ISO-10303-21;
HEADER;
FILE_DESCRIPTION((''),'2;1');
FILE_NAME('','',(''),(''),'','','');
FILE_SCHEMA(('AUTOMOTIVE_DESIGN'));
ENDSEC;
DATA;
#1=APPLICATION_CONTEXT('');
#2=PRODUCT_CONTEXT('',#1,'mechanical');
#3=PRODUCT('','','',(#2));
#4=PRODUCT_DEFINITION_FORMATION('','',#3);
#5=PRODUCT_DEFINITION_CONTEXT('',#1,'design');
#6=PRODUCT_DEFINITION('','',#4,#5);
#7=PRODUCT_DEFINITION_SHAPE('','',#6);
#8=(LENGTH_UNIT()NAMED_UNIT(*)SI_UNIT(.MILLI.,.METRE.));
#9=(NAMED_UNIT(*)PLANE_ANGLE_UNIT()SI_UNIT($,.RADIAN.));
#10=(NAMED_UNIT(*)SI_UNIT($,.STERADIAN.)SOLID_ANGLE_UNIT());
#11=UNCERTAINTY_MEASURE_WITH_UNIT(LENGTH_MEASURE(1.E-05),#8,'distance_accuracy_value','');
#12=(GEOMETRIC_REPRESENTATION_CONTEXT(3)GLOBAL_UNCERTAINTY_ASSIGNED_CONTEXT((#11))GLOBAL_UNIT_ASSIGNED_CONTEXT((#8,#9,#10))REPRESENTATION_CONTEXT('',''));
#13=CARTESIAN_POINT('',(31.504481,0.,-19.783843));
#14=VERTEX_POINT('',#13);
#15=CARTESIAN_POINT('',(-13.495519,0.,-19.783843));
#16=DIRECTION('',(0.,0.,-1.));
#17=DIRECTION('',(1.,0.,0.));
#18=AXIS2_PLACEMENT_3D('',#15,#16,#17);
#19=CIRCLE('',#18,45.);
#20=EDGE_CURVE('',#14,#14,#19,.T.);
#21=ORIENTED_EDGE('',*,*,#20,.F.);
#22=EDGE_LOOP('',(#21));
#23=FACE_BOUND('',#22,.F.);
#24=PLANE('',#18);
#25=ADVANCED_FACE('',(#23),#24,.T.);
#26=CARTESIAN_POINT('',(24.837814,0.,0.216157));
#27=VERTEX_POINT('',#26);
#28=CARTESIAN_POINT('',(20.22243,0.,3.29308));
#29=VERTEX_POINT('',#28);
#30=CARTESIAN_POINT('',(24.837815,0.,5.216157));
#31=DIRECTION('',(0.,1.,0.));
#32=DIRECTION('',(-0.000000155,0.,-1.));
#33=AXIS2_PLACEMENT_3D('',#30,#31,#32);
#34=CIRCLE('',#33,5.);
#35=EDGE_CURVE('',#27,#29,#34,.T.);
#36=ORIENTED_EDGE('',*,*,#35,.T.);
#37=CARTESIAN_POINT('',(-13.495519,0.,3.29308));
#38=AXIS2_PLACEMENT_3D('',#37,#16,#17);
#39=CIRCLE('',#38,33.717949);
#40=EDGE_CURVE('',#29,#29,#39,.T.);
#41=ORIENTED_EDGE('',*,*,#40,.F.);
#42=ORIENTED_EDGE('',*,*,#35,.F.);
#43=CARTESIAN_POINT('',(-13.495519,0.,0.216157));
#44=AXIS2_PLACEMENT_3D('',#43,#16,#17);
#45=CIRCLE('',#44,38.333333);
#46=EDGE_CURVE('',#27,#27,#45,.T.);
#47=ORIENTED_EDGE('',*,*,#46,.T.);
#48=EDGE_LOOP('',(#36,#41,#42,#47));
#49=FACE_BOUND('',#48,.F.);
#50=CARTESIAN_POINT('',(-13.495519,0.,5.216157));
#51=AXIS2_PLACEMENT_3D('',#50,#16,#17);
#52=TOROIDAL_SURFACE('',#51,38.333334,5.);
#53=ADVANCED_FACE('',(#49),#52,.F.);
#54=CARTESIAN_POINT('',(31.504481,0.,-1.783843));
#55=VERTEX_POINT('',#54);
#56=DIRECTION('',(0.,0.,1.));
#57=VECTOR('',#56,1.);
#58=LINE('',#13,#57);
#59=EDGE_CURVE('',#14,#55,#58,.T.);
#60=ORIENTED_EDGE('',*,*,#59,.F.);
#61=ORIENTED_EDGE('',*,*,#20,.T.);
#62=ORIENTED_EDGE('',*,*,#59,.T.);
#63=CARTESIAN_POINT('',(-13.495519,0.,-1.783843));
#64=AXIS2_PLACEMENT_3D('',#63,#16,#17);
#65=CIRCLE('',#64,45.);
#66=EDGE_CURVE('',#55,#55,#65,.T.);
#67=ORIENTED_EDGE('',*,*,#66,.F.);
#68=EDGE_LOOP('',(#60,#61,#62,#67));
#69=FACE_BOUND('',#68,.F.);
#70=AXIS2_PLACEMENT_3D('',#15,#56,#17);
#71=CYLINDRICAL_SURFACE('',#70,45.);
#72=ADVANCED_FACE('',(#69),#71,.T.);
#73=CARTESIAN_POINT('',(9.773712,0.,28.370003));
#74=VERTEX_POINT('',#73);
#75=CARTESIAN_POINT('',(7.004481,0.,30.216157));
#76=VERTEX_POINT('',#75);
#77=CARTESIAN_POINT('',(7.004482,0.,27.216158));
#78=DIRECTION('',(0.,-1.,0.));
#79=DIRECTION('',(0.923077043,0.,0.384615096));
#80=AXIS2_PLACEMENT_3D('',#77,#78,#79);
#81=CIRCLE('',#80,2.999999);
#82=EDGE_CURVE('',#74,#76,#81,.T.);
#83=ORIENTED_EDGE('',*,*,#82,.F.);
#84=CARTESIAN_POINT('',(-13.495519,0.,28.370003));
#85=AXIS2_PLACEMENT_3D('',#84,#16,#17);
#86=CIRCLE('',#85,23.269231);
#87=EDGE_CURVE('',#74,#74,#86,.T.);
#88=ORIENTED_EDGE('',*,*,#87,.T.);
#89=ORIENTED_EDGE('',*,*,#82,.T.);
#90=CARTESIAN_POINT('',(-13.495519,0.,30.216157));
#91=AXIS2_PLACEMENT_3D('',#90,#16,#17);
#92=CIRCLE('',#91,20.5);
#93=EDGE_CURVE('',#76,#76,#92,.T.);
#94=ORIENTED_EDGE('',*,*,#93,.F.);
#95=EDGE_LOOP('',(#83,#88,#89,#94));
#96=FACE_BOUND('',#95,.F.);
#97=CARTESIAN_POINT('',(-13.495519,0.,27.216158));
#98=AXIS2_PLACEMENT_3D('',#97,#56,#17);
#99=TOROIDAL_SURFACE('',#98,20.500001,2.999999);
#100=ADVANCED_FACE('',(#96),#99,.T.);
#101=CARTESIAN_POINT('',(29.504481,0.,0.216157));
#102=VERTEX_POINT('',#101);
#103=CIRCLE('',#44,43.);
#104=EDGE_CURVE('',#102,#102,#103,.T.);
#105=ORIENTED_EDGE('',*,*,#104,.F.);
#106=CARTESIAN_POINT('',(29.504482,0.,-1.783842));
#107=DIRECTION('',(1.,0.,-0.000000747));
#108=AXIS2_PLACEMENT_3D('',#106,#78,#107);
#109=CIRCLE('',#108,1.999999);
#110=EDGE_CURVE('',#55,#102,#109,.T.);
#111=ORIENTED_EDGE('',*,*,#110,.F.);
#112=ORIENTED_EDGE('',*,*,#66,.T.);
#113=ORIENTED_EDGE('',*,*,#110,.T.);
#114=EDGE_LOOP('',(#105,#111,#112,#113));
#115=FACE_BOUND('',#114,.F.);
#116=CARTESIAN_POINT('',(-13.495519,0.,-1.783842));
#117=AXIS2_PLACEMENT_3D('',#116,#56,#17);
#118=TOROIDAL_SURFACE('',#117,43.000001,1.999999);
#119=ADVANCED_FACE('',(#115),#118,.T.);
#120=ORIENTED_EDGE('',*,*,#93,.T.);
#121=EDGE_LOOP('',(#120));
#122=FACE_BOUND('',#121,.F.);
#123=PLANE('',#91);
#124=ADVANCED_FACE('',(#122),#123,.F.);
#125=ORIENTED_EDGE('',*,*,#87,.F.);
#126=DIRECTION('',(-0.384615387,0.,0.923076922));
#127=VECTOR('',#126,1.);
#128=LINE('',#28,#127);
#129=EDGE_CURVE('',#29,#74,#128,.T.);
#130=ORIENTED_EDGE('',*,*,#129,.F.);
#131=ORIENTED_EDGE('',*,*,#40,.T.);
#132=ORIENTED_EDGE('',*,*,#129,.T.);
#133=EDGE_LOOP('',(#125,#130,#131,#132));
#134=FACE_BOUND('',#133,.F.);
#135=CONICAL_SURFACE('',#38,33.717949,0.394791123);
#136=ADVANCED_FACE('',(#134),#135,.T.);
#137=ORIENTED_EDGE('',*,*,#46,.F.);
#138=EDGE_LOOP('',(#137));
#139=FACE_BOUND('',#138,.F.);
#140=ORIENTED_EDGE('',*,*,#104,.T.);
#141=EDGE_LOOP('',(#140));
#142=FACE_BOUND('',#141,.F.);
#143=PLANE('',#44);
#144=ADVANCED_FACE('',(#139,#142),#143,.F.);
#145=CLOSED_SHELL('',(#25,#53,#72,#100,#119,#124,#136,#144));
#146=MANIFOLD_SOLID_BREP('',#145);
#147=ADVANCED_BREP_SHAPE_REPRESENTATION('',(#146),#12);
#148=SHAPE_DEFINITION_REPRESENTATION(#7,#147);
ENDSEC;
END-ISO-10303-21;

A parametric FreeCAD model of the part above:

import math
import FreeCAD as App
import Part
import Sketcher

doc = App.newDocument("Part")
body = doc.addObject("PartDesign::Body", "Body")

sketch1 = doc.addObject("Sketcher::SketchObject", "Sketch")
body.addObject(sketch1)
sketch1.AttachmentSupport = (doc.XZ_Plane, [""])
sketch1.MapMode = "FlatFace"
sketch1.addGeometry([
    Part.LineSegment(App.Vector(-13.5, -19.8, 0), App.Vector(31.5, -19.8, 0)),
    Part.LineSegment(App.Vector(31.5, -19.8, 0), App.Vector(31.5, -1.8, 0)),
    Part.ArcOfCircle(Part.Circle(App.Vector(29.5, -1.8, 0), App.Vector(0, 0, 1), 2), math.radians(0), math.radians(90)),
    Part.LineSegment(App.Vector(29.5, 0.2, 0), App.Vector(24.8, 0.2, 0)),
    Part.ArcOfCircle(Part.Circle(App.Vector(24.8, 5.2, 0), App.Vector(0, 0, 1), 5), math.radians(-157), math.radians(-90)),
    Part.LineSegment(App.Vector(20.2, 3.3, 0), App.Vector(9.8, 28.4, 0)),
    Part.ArcOfCircle(Part.Circle(App.Vector(7, 27.2, 0), App.Vector(0, 0, 1), 3), math.radians(23), math.radians(90)),
    Part.LineSegment(App.Vector(7, 30.2, 0), App.Vector(-13.5, 30.2, 0)),
    Part.LineSegment(App.Vector(-13.5, 30.2, 0), App.Vector(-13.5, -19.8, 0)),
], False)
sketch1.addGeometry(Part.LineSegment(App.Vector(-13.5, 30.2, 0), App.Vector(-13.5, -19.8, 0)), True)
sketch1.addConstraint([
    Sketcher.Constraint("Coincident", 0, 2, 1, 1),
    Sketcher.Constraint("Tangent", 1, 2, 2, 1),
    Sketcher.Constraint("Tangent", 2, 2, 3, 1),
    Sketcher.Constraint("Tangent", 3, 2, 4, 2),
    Sketcher.Constraint("Tangent", 4, 1, 5, 1),
    Sketcher.Constraint("Tangent", 5, 2, 6, 1),
    Sketcher.Constraint("Tangent", 6, 2, 7, 1),
    Sketcher.Constraint("Coincident", 7, 2, 8, 1),
    Sketcher.Constraint("Coincident", 8, 2, 0, 1),
    Sketcher.Constraint("Horizontal", 0),
    Sketcher.Constraint("Vertical", 1),
    Sketcher.Constraint("Horizontal", 3),
    Sketcher.Constraint("Horizontal", 7),
    Sketcher.Constraint("Vertical", 8),
    Sketcher.Constraint("Vertical", 9),
    Sketcher.Constraint("Coincident", 9, 1, 7, 2),
    Sketcher.Constraint("Horizontal", 0, 2, 9, 2),
    Sketcher.Constraint("Radius", 2, 1.999999),
    Sketcher.Constraint("Radius", 4, 5.0),
    Sketcher.Constraint("Radius", 6, 2.999999),
    Sketcher.Constraint("DistanceX", 0, 1, 0, 2, 45.0),
    Sketcher.Constraint("DistanceY", 1, 1, 1, 2, 18.0),
    Sketcher.Constraint("DistanceY", 8, 2, 8, 1, 50.0),
    Sketcher.Constraint("DistanceX", 7, 2, 7, 1, 20.5),
    Sketcher.Constraint("DistanceX", 3, 2, 3, 1, 4.666667),
    Sketcher.Constraint("DistanceY", 2, 3, -1, 1, 1.783842),
    Sketcher.Constraint("DistanceX", -1, 1, 6, 3, 7.004482),
])
revolution = doc.addObject("PartDesign::Revolution", "Revolution")
body.addObject(revolution)
revolution.Profile = sketch1
revolution.ReferenceAxis = (sketch1, ["Axis0"])
revolution.Angle = 360

doc.recompute()
